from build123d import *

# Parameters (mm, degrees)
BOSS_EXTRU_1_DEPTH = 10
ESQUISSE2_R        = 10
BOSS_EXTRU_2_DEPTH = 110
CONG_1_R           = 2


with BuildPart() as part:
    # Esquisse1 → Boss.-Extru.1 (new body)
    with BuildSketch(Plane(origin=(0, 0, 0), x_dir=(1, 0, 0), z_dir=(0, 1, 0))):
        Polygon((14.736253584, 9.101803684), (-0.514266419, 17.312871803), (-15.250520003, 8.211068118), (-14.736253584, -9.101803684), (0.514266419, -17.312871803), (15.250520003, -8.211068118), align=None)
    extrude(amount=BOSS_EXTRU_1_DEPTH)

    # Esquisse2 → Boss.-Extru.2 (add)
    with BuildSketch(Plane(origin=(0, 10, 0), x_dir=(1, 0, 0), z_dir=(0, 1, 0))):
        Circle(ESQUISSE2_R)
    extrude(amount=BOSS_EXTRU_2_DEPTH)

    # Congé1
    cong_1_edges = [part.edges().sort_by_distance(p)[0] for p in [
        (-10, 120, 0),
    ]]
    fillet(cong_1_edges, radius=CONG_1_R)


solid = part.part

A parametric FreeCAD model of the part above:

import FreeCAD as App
import Part
import Sketcher
from FreeCAD import Vector


def edges_at(feature, points):
    """Names of the edges that pass closest to the given points."""
    edges = feature.Shape.Edges
    near = lambda p: min(range(len(edges)), key=lambda i: edges[i].distToShape(Part.Vertex(*p))[0])
    return sorted({f"Edge{near(p) + 1}" for p in points})

doc = App.newDocument("Part")
body = doc.addObject("PartDesign::Body", "Body")

sketch1 = body.newObject("Sketcher::SketchObject", "Sketch")
sketch1.AttachmentSupport = (doc.getObject("XZ_Plane"), [""])
sketch1.MapMode = "FlatFace"
sketch1.addGeometry([
    Part.LineSegment(Vector(15, -9, 0), Vector(-1, -17, 0)),
    Part.LineSegment(Vector(-1, -17, 0), Vector(-15, -8, 0)),
    Part.LineSegment(Vector(-15, -8, 0), Vector(-15, 9, 0)),
    Part.LineSegment(Vector(-15, 9, 0), Vector(1, 17, 0)),
    Part.LineSegment(Vector(1, 17, 0), Vector(15, 8, 0)),
    Part.LineSegment(Vector(15, 8, 0), Vector(15, -9, 0)),
], False)
sketch1.addConstraint([
    Sketcher.Constraint("Coincident", 0, 2, 1, 1),
    Sketcher.Constraint("Coincident", 1, 2, 2, 1),
    Sketcher.Constraint("Coincident", 2, 2, 3, 1),
    Sketcher.Constraint("Coincident", 3, 2, 4, 1),
    Sketcher.Constraint("Coincident", 4, 2, 5, 1),
    Sketcher.Constraint("Coincident", 5, 2, 0, 1),
    Sketcher.Constraint("Symmetric", 0, 2, 3, 2, -1, 1),
    Sketcher.Constraint("Symmetric", 1, 2, 4, 2, -1, 1),
    Sketcher.Constraint("Symmetric", 2, 2, 5, 2, -1, 1),
    Sketcher.Constraint("Equal", 0, 1),
    Sketcher.Constraint("Equal", 1, 2),
    Sketcher.Constraint("Distance", 0, 17.320508),
    Sketcher.Constraint("DistanceY", 0, 2, -1, 1, 17.312872),
    Sketcher.Constraint("DistanceX", 1, 2, -1, 1, 15.25052),
    Sketcher.Constraint("DistanceY", 1, 2, -1, 1, 8.211068),
])
pad1 = body.newObject("PartDesign::Pad", "Pad")
pad1.Profile = sketch1
pad1.Length = 10
pad1.Reversed = True

sketch2 = body.newObject("Sketcher::SketchObject", "Sketch001")
sketch2.AttachmentSupport = (doc.getObject("XZ_Plane"), [""])
sketch2.MapMode = "FlatFace"
sketch2.AttachmentOffset = App.Placement(Vector(0, 0, -10), App.Rotation())
sketch2.addGeometry(Part.Circle(Vector(0, 0, 0), Vector(0, 0, 1), 10), False)
sketch2.addConstraint([
    Sketcher.Constraint("Coincident", 0, 3, -1, 1),
    Sketcher.Constraint("Diameter", 0, 20.0),
])
pad2 = body.newObject("PartDesign::Pad", "Pad001")
pad2.Profile = sketch2
pad2.Length = 110
pad2.Reversed = True
doc.recompute()

fillet = body.newObject("PartDesign::Fillet", "Fillet")
fillet.Base = (pad2, edges_at(pad2, [(-10, 120, 0)]))
fillet.Radius = 2

doc.recompute()
